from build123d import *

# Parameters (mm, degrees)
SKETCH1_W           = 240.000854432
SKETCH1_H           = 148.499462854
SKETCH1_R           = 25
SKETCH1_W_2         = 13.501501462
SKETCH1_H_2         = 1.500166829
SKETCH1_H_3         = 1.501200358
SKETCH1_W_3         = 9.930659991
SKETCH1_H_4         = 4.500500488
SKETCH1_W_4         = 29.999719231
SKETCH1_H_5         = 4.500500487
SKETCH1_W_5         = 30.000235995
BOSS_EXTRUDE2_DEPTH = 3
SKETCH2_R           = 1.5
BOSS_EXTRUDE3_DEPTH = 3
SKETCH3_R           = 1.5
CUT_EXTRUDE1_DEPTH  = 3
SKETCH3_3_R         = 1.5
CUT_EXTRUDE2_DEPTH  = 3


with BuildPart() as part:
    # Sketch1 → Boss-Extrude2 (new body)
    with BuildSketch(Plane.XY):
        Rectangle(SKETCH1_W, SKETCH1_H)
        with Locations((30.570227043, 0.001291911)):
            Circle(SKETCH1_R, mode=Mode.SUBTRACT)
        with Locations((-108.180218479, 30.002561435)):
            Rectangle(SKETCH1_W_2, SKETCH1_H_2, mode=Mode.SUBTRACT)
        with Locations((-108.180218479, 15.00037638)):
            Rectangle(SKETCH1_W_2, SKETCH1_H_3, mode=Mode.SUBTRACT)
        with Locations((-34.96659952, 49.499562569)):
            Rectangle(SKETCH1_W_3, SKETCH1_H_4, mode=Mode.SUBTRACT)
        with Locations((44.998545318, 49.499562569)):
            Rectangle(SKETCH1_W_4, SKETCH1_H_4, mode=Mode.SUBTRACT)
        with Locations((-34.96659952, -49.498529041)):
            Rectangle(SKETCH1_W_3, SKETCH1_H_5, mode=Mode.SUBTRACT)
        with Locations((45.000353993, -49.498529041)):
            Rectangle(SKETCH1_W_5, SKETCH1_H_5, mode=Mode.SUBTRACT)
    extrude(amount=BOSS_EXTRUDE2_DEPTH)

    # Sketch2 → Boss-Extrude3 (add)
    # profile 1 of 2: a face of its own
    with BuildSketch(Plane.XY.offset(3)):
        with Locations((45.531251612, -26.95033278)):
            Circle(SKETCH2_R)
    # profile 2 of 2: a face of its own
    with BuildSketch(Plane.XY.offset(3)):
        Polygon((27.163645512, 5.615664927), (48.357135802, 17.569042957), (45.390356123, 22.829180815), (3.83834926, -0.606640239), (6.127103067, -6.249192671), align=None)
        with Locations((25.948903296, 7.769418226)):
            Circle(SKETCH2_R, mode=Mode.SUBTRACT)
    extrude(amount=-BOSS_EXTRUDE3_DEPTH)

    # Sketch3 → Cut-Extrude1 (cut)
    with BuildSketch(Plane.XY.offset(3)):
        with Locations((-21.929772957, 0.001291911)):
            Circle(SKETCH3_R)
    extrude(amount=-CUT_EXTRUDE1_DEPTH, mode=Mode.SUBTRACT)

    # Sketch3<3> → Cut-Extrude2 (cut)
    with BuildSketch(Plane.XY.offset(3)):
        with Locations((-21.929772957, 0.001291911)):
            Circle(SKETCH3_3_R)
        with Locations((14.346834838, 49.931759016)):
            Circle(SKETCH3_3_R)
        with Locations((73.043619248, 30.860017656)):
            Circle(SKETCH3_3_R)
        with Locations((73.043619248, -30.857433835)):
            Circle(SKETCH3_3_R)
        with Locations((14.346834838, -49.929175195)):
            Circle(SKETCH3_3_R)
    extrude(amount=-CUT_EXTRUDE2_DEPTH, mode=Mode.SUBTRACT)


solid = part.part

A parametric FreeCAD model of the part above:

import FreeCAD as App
import Part
import Sketcher

V = App.Vector
Q = App.Units.Quantity

doc = App.newDocument("Part")
params = doc.addObject("Spreadsheet::Sheet", "Params")
for row, (alias, value) in enumerate([
    ("sketch1_diameter", "50 mm"),
    ("pad1_length", "3 mm"),
    ("sketch2_diameter", "3 mm"),
    ("pad2_length", "3 mm"),
    ("sketch3_diameter", "3 mm"),
    ("pocket1_length", "3 mm"),
    ("sketch4_diameter", "3 mm"),
    ("pocket2_length", "3 mm"),
], start=1):
    params.set(f"A{row}", alias)
    params.set(f"B{row}", "=" + value)
    params.setAlias(f"B{row}", alias)

body = doc.addObject("PartDesign::Body", "Body")

# Sketch on XY plane
sketch1 = body.newObject("Sketcher::SketchObject", "Sketch")
sketch1.AttachmentSupport = (doc.getObject("XY_Plane"), [""])
sketch1.MapMode = "FlatFace"
sketch1.addGeometry(Part.LineSegment(V(-120, 74.2, 0), V(-120, -74.2, 0)), False)
sketch1.addGeometry(Part.LineSegment(V(-120, -74.2, 0), V(120, -74.2, 0)), False)
sketch1.addGeometry(Part.LineSegment(V(120, -74.2, 0), V(120, 74.2, 0)), False)
sketch1.addGeometry(Part.LineSegment(V(120, 74.2, 0), V(-120, 74.2, 0)), False)
sketch1.addGeometry(Part.LineSegment(V(-30, -51.7, 0), V(-39.9, -51.7, 0)), False)
sketch1.addGeometry(Part.LineSegment(V(-39.9, -51.7, 0), V(-39.9, -47.2, 0)), False)
sketch1.addGeometry(Part.LineSegment(V(-39.9, -47.2, 0), V(-30, -47.2, 0)), False)
sketch1.addGeometry(Part.LineSegment(V(-30, -47.2, 0), V(-30, -51.7, 0)), False)
sketch1.addGeometry(Part.LineSegment(V(60, -51.7, 0), V(30, -51.7, 0)), False)
sketch1.addGeometry(Part.LineSegment(V(30, -51.7, 0), V(30, -47.2, 0)), False)
sketch1.addGeometry(Part.LineSegment(V(30, -47.2, 0), V(60, -47.2, 0)), False)
sketch1.addGeometry(Part.LineSegment(V(60, -47.2, 0), V(60, -51.7, 0)), False)
sketch1.addGeometry(Part.LineSegment(V(-101.4, 14.2, 0), V(-114.9, 14.2, 0)), False)
sketch1.addGeometry(Part.LineSegment(V(-114.9, 14.2, 0), V(-114.9, 15.8, 0)), False)
sketch1.addGeometry(Part.LineSegment(V(-114.9, 15.8, 0), V(-101.4, 15.8, 0)), False)
sketch1.addGeometry(Part.LineSegment(V(-101.4, 15.8, 0), V(-101.4, 14.2, 0)), False)
sketch1.addGeometry(Part.LineSegment(V(-101.4, 29.3, 0), V(-114.9, 29.3, 0)), False)
sketch1.addGeometry(Part.LineSegment(V(-114.9, 29.3, 0), V(-114.9, 30.8, 0)), False)
sketch1.addGeometry(Part.LineSegment(V(-114.9, 30.8, 0), V(-101.4, 30.8, 0)), False)
sketch1.addGeometry(Part.LineSegment(V(-101.4, 30.8, 0), V(-101.4, 29.3, 0)), False)
sketch1.addGeometry(Part.LineSegment(V(-30, 47.2, 0), V(-39.9, 47.2, 0)), False)
sketch1.addGeometry(Part.LineSegment(V(-39.9, 47.2, 0), V(-39.9, 51.7, 0)), False)
sketch1.addGeometry(Part.LineSegment(V(-39.9, 51.7, 0), V(-30, 51.7, 0)), False)
sketch1.addGeometry(Part.LineSegment(V(-30, 51.7, 0), V(-30, 47.2, 0)), False)
sketch1.addGeometry(Part.Circle(V(30.6, 0, 0), V(0, 0, 1), 25), False)
sketch1.addGeometry(Part.LineSegment(V(60, 47.2, 0), V(30, 47.2, 0)), False)
sketch1.addGeometry(Part.LineSegment(V(30, 47.2, 0), V(30, 51.7, 0)), False)
sketch1.addGeometry(Part.LineSegment(V(30, 51.7, 0), V(60, 51.7, 0)), False)
sketch1.addGeometry(Part.LineSegment(V(60, 51.7, 0), V(60, 47.2, 0)), False)
sketch1.addConstraint(Sketcher.Constraint("Coincident", 0, 2, 1, 1))
sketch1.addConstraint(Sketcher.Constraint("Coincident", 1, 2, 2, 1))
sketch1.addConstraint(Sketcher.Constraint("Coincident", 2, 2, 3, 1))
sketch1.addConstraint(Sketcher.Constraint("Coincident", 3, 2, 0, 1))
sketch1.addConstraint(Sketcher.Constraint("Coincident", 4, 2, 5, 1))
sketch1.addConstraint(Sketcher.Constraint("Coincident", 5, 2, 6, 1))
sketch1.addConstraint(Sketcher.Constraint("Coincident", 6, 2, 7, 1))
sketch1.addConstraint(Sketcher.Constraint("Coincident", 7, 2, 4, 1))
sketch1.addConstraint(Sketcher.Constraint("Coincident", 8, 2, 9, 1))
sketch1.addConstraint(Sketcher.Constraint("Coincident", 9, 2, 10, 1))
sketch1.addConstraint(Sketcher.Constraint("Coincident", 10, 2, 11, 1))
sketch1.addConstraint(Sketcher.Constraint("Coincident", 11, 2, 8, 1))
sketch1.addConstraint(Sketcher.Constraint("Coincident", 12, 2, 13, 1))
sketch1.addConstraint(Sketcher.Constraint("Coincident", 13, 2, 14, 1))
sketch1.addConstraint(Sketcher.Constraint("Coincident", 14, 2, 15, 1))
sketch1.addConstraint(Sketcher.Constraint("Coincident", 15, 2, 12, 1))
sketch1.addConstraint(Sketcher.Constraint("Coincident", 16, 2, 17, 1))
sketch1.addConstraint(Sketcher.Constraint("Coincident", 17, 2, 18, 1))
sketch1.addConstraint(Sketcher.Constraint("Coincident", 18, 2, 19, 1))
sketch1.addConstraint(Sketcher.Constraint("Coincident", 19, 2, 16, 1))
sketch1.addConstraint(Sketcher.Constraint("Coincident", 20, 2, 21, 1))
sketch1.addConstraint(Sketcher.Constraint("Coincident", 21, 2, 22, 1))
sketch1.addConstraint(Sketcher.Constraint("Coincident", 22, 2, 23, 1))
sketch1.addConstraint(Sketcher.Constraint("Coincident", 23, 2, 20, 1))
sketch1.addConstraint(Sketcher.Constraint("Coincident", 25, 2, 26, 1))
sketch1.addConstraint(Sketcher.Constraint("Coincident", 26, 2, 27, 1))
sketch1.addConstraint(Sketcher.Constraint("Coincident", 27, 2, 28, 1))
sketch1.addConstraint(Sketcher.Constraint("Coincident", 28, 2, 25, 1))
sketch1.addConstraint(Sketcher.Constraint("Vertical", 0))
sketch1.addConstraint(Sketcher.Constraint("Horizontal", 1))
sketch1.addConstraint(Sketcher.Constraint("Vertical", 2))
sketch1.addConstraint(Sketcher.Constraint("Horizontal", 3))
sketch1.addConstraint(Sketcher.Constraint("Horizontal", 4))
sketch1.addConstraint(Sketcher.Constraint("Vertical", 5))
sketch1.addConstraint(Sketcher.Constraint("Horizontal", 6))
sketch1.addConstraint(Sketcher.Constraint("Vertical", 7))
sketch1.addConstraint(Sketcher.Constraint("Horizontal", 8))
sketch1.addConstraint(Sketcher.Constraint("Vertical", 9))
sketch1.addConstraint(Sketcher.Constraint("Horizontal", 10))
sketch1.addConstraint(Sketcher.Constraint("Vertical", 11))
sketch1.addConstraint(Sketcher.Constraint("Horizontal", 12))
sketch1.addConstraint(Sketcher.Constraint("Vertical", 13))
sketch1.addConstraint(Sketcher.Constraint("Horizontal", 14))
sketch1.addConstraint(Sketcher.Constraint("Vertical", 15))
sketch1.addConstraint(Sketcher.Constraint("Horizontal", 16))
sketch1.addConstraint(Sketcher.Constraint("Vertical", 17))
sketch1.addConstraint(Sketcher.Constraint("Horizontal", 18))
sketch1.addConstraint(Sketcher.Constraint("Vertical", 19))
sketch1.addConstraint(Sketcher.Constraint("Horizontal", 20))
sketch1.addConstraint(Sketcher.Constraint("Vertical", 21))
sketch1.addConstraint(Sketcher.Constraint("Horizontal", 22))
sketch1.addConstraint(Sketcher.Constraint("Vertical", 23))
sketch1.addConstraint(Sketcher.Constraint("Horizontal", 25))
sketch1.addConstraint(Sketcher.Constraint("Vertical", 26))
sketch1.addConstraint(Sketcher.Constraint("Horizontal", 27))
sketch1.addConstraint(Sketcher.Constraint("Vertical", 28))
sketch1.addConstraint(Sketcher.Constraint("Symmetric", 0, 2, 2, 2, -1, 1))
sketch1.addConstraint(Sketcher.Constraint("Horizontal", 7, 2, 8, 2))
sketch1.addConstraint(Sketcher.Constraint("Horizontal", 6, 2, 9, 2))
sketch1.addConstraint(Sketcher.Constraint("Horizontal", 23, 2, 25, 2))
sketch1.addConstraint(Sketcher.Constraint("Horizontal", 22, 2, 26, 2))
sketch1.addConstraint(Sketcher.Constraint("Vertical", 13, 2, 16, 2))
sketch1.addConstraint(Sketcher.Constraint("Vertical", 15, 2, 18, 2))
sketch1.addConstraint(Sketcher.Constraint("Vertical", 5, 2, 20, 2))
sketch1.addConstraint(Sketcher.Constraint("Vertical", 7, 2, 22, 2))
sketch1.addConstraint(Sketcher.Constraint("Equal", 11, 21))
sketch1.addConstraint(Sketcher.Constraint("Diameter", 24, Q("50 mm")))
sketch1.addConstraint(Sketcher.Constraint("DistanceX", 12, 2, 12, 1, Q("13.501501 mm")))
sketch1.addConstraint(Sketcher.Constraint("DistanceY", 5, 1, 5, 2, Q("4.5005 mm")))
sketch1.addConstraint(Sketcher.Constraint("DistanceY", 13, 1, 13, 2, Q("1.5012 mm")))
sketch1.addConstraint(Sketcher.Constraint("DistanceX", 4, 2, 4, 1, Q("9.93066 mm")))
sketch1.addConstraint(Sketcher.Constraint("DistanceX", 25, 2, 25, 1, Q("29.999719 mm")))
sketch1.addConstraint(Sketcher.Constraint("DistanceX", 24, 3, 1, 2, Q("89.4302 mm")))
sketch1.addConstraint(Sketcher.Constraint("DistanceX", 12, 2, 6, 2, Q("84.9297 mm")))
sketch1.addConstraint(Sketcher.Constraint("DistanceY", 13, 2, 16, 2, Q("13.501501 mm")))
sketch1.addConstraint(Sketcher.Constraint("DistanceX", 1, 1, 1, 2, Q("240.000854 mm")))
sketch1.addConstraint(Sketcher.Constraint("DistanceX", 8, 2, 8, 1, Q("30.000236 mm")))
sketch1.addConstraint(Sketcher.Constraint("DistanceY", 0, 2, 0, 1, Q("148.499463 mm")))
sketch1.addConstraint(Sketcher.Constraint("DistanceY", 17, 1, 17, 2, Q("1.500167 mm")))
sketch1.addConstraint(Sketcher.Constraint("DistanceY", -1, 1, 24, 3, Q("0.001292 mm")))
sketch1.addConstraint(Sketcher.Constraint("DistanceX", 4, 2, -1, 1, Q("39.93193 mm")))
sketch1.addConstraint(Sketcher.Constraint("DistanceY", 4, 2, -1, 1, Q("51.748779 mm")))
sketch1.addConstraint(Sketcher.Constraint("DistanceX", -1, 1, 10, 2, Q("60.000472 mm")))
sketch1.addConstraint(Sketcher.Constraint("DistanceY", -1, 1, 16, 2, Q("29.252478 mm")))
sketch1.addConstraint(Sketcher.Constraint("DistanceY", 24, 3, 22, 2, Q("51.748521 mm")))
sketch1.addConstraint(Sketcher.Constraint("DistanceX", 25, 2, 24, 3, Q("0.571541 mm")))
sketch1.setExpression("Constraints[66]", "Params.sketch1_diameter")
pad1 = body.newObject("PartDesign::Pad", "Pad")
pad1.Profile = sketch1
pad1.setExpression("Length", "Params.pad1_length")

# Sketch on XY plane
sketch2 = body.newObject("Sketcher::SketchObject", "Sketch001")
sketch2.AttachmentSupport = (doc.getObject("XY_Plane"), [""])
sketch2.MapMode = "FlatFace"
sketch2.AttachmentOffset = App.Placement(V(0, 0, 3), App.Rotation())
sketch2.addGeometry(Part.Circle(V(45.5, -27, 0), V(0, 0, 1), 1.5), False)
sketch2.addGeometry(Part.LineSegment(V(27.2, 5.6, 0), V(48.4, 17.6, 0)), False)
sketch2.addGeometry(Part.LineSegment(V(48.4, 17.6, 0), V(45.4, 22.8, 0)), False)
sketch2.addGeometry(Part.LineSegment(V(45.4, 22.8, 0), V(3.8, -0.6, 0)), False)
sketch2.addGeometry(Part.LineSegment(V(3.8, -0.6, 0), V(6.1, -6.2, 0)), False)
sketch2.addGeometry(Part.LineSegment(V(6.1, -6.2, 0), V(27.2, 5.6, 0)), False)
sketch2.addGeometry(Part.Circle(V(25.9, 7.8, 0), V(0, 0, 1), 1.5), False)
sketch2.addConstraint(Sketcher.Constraint("Coincident", 1, 2, 2, 1))
sketch2.addConstraint(Sketcher.Constraint("Coincident", 2, 2, 3, 1))
sketch2.addConstraint(Sketcher.Constraint("Coincident", 3, 2, 4, 1))
sketch2.addConstraint(Sketcher.Constraint("Coincident", 4, 2, 5, 1))
sketch2.addConstraint(Sketcher.Constraint("Coincident", 5, 2, 1, 1))
sketch2.addConstraint(Sketcher.Constraint("Equal", 0, 6))
sketch2.addConstraint(Sketcher.Constraint("Perpendicular", 1, 2))
sketch2.addConstraint(Sketcher.Constraint("Perpendicular", 2, 3))
sketch2.addConstraint(Sketcher.Constraint("Parallel", 3, 5))
sketch2.addConstraint(Sketcher.Constraint("Diameter", 0, Q("3 mm")))
sketch2.addConstraint(Sketcher.Constraint("DistanceX", 4, 2, 6, 3, Q("19.8218 mm")))
sketch2.addConstraint(Sketcher.Constraint("Distance", 1, Q("24.332022 mm")))
sketch2.addConstraint(Sketcher.Constraint("Distance", 2, Q("6.039109 mm")))
sketch2.addConstraint(Sketcher.Constraint("Distance", 3, Q("47.705419 mm")))
sketch2.addConstraint(Sketcher.Constraint("Distance", 4, Q("6.089072 mm")))
sketch2.addConstraint(Sketcher.Constraint("DistanceX", -1, 1, 0, 3, Q("45.531252 mm")))
sketch2.addConstraint(Sketcher.Constraint("DistanceY", -1, 1, 6, 3, Q("7.769418 mm")))
sketch2.addConstraint(Sketcher.Constraint("DistanceY", -1, 1, 2, 2, Q("22.829181 mm")))
sketch2.addConstraint(Sketcher.Constraint("DistanceX", -1, 1, 3, 2, Q("3.838349 mm")))
sketch2.addConstraint(Sketcher.Constraint("DistanceY", 3, 2, -1, 1, Q("0.60664 mm")))
sketch2.addConstraint(Sketcher.Constraint("DistanceY", 0, 3, 6, 3, Q("34.719751 mm")))
sketch2.setExpression("Constraints[9]", "Params.sketch2_diameter")
pad2 = body.newObject("PartDesign::Pad", "Pad001")
pad2.Profile = sketch2
pad2.setExpression("Length", "Params.pad2_length")
pad2.Reversed = True

# Sketch on XY plane
sketch3 = body.newObject("Sketcher::SketchObject", "Sketch002")
sketch3.AttachmentSupport = (doc.getObject("XY_Plane"), [""])
sketch3.MapMode = "FlatFace"
sketch3.AttachmentOffset = App.Placement(V(0, 0, 3), App.Rotation())
sketch3.addGeometry(Part.Circle(V(-21.9, 0, 0), V(0, 0, 1), 1.5), False)
sketch3.addConstraint(Sketcher.Constraint("Diameter", 0, Q("3 mm")))
sketch3.addConstraint(Sketcher.Constraint("DistanceY", -1, 1, 0, 3, Q("0.001292 mm")))
sketch3.addConstraint(Sketcher.Constraint("DistanceX", 0, 3, -1, 1, Q("21.929773 mm")))
sketch3.setExpression("Constraints[0]", "Params.sketch3_diameter")
pocket1 = body.newObject("PartDesign::Pocket", "Pocket")
pocket1.Profile = sketch3
pocket1.setExpression("Length", "Params.pocket1_length")

# Sketch on XY plane
sketch4 = body.newObject("Sketcher::SketchObject", "Sketch003")
sketch4.AttachmentSupport = (doc.getObject("XY_Plane"), [""])
sketch4.MapMode = "FlatFace"
sketch4.AttachmentOffset = App.Placement(V(0, 0, 3), App.Rotation())
sketch4.addGeometry(Part.Circle(V(-21.9, 0, 0), V(0, 0, 1), 1.5), False)
sketch4.addGeometry(Part.Circle(V(14.3, 49.9, 0), V(0, 0, 1), 1.5), False)
sketch4.addGeometry(Part.Circle(V(73, 30.9, 0), V(0, 0, 1), 1.5), False)
sketch4.addGeometry(Part.Circle(V(73, -30.9, 0), V(0, 0, 1), 1.5), False)
sketch4.addGeometry(Part.Circle(V(14.3, -49.9, 0), V(0, 0, 1), 1.5), False)
sketch4.addConstraint(Sketcher.Constraint("Equal", 0, 1))
sketch4.addConstraint(Sketcher.Constraint("Equal", 1, 2))
sketch4.addConstraint(Sketcher.Constraint("Equal", 2, 3))
sketch4.addConstraint(Sketcher.Constraint("Equal", 3, 4))
sketch4.addConstraint(Sketcher.Constraint("Vertical", 2, 3, 3, 3))
sketch4.addConstraint(Sketcher.Constraint("Vertical", 1, 3, 4, 3))
sketch4.addConstraint(Sketcher.Constraint("Diameter", 0, Q("3 mm")))
sketch4.addConstraint(Sketcher.Constraint("DistanceY", -1, 1, 0, 3, Q("0.001292 mm")))
sketch4.addConstraint(Sketcher.Constraint("DistanceY", -1, 1, 1, 3, Q("49.931759 mm")))
sketch4.addConstraint(Sketcher.Constraint("DistanceX", -1, 1, 2, 3, Q("73.043619 mm")))
sketch4.addConstraint(Sketcher.Constraint("DistanceY", 2, 3, 1, 3, Q("19.071741 mm")))
sketch4.addConstraint(Sketcher.Constraint("DistanceY", 3, 3, 2, 3, Q("61.717451 mm")))
sketch4.addConstraint(Sketcher.Constraint("DistanceY", 4, 3, 3, 3, Q("19.071741 mm")))
sketch4.addConstraint(Sketcher.Constraint("DistanceX", 0, 3, -1, 1, Q("21.929773 mm")))
sketch4.addConstraint(Sketcher.Constraint("DistanceX", -1, 1, 1, 3, Q("14.346835 mm")))
sketch4.setExpression("Constraints[6]", "Params.sketch4_diameter")
pocket2 = body.newObject("PartDesign::Pocket", "Pocket001")
pocket2.Profile = sketch4
pocket2.setExpression("Length", "Params.pocket2_length")

doc.recompute()
